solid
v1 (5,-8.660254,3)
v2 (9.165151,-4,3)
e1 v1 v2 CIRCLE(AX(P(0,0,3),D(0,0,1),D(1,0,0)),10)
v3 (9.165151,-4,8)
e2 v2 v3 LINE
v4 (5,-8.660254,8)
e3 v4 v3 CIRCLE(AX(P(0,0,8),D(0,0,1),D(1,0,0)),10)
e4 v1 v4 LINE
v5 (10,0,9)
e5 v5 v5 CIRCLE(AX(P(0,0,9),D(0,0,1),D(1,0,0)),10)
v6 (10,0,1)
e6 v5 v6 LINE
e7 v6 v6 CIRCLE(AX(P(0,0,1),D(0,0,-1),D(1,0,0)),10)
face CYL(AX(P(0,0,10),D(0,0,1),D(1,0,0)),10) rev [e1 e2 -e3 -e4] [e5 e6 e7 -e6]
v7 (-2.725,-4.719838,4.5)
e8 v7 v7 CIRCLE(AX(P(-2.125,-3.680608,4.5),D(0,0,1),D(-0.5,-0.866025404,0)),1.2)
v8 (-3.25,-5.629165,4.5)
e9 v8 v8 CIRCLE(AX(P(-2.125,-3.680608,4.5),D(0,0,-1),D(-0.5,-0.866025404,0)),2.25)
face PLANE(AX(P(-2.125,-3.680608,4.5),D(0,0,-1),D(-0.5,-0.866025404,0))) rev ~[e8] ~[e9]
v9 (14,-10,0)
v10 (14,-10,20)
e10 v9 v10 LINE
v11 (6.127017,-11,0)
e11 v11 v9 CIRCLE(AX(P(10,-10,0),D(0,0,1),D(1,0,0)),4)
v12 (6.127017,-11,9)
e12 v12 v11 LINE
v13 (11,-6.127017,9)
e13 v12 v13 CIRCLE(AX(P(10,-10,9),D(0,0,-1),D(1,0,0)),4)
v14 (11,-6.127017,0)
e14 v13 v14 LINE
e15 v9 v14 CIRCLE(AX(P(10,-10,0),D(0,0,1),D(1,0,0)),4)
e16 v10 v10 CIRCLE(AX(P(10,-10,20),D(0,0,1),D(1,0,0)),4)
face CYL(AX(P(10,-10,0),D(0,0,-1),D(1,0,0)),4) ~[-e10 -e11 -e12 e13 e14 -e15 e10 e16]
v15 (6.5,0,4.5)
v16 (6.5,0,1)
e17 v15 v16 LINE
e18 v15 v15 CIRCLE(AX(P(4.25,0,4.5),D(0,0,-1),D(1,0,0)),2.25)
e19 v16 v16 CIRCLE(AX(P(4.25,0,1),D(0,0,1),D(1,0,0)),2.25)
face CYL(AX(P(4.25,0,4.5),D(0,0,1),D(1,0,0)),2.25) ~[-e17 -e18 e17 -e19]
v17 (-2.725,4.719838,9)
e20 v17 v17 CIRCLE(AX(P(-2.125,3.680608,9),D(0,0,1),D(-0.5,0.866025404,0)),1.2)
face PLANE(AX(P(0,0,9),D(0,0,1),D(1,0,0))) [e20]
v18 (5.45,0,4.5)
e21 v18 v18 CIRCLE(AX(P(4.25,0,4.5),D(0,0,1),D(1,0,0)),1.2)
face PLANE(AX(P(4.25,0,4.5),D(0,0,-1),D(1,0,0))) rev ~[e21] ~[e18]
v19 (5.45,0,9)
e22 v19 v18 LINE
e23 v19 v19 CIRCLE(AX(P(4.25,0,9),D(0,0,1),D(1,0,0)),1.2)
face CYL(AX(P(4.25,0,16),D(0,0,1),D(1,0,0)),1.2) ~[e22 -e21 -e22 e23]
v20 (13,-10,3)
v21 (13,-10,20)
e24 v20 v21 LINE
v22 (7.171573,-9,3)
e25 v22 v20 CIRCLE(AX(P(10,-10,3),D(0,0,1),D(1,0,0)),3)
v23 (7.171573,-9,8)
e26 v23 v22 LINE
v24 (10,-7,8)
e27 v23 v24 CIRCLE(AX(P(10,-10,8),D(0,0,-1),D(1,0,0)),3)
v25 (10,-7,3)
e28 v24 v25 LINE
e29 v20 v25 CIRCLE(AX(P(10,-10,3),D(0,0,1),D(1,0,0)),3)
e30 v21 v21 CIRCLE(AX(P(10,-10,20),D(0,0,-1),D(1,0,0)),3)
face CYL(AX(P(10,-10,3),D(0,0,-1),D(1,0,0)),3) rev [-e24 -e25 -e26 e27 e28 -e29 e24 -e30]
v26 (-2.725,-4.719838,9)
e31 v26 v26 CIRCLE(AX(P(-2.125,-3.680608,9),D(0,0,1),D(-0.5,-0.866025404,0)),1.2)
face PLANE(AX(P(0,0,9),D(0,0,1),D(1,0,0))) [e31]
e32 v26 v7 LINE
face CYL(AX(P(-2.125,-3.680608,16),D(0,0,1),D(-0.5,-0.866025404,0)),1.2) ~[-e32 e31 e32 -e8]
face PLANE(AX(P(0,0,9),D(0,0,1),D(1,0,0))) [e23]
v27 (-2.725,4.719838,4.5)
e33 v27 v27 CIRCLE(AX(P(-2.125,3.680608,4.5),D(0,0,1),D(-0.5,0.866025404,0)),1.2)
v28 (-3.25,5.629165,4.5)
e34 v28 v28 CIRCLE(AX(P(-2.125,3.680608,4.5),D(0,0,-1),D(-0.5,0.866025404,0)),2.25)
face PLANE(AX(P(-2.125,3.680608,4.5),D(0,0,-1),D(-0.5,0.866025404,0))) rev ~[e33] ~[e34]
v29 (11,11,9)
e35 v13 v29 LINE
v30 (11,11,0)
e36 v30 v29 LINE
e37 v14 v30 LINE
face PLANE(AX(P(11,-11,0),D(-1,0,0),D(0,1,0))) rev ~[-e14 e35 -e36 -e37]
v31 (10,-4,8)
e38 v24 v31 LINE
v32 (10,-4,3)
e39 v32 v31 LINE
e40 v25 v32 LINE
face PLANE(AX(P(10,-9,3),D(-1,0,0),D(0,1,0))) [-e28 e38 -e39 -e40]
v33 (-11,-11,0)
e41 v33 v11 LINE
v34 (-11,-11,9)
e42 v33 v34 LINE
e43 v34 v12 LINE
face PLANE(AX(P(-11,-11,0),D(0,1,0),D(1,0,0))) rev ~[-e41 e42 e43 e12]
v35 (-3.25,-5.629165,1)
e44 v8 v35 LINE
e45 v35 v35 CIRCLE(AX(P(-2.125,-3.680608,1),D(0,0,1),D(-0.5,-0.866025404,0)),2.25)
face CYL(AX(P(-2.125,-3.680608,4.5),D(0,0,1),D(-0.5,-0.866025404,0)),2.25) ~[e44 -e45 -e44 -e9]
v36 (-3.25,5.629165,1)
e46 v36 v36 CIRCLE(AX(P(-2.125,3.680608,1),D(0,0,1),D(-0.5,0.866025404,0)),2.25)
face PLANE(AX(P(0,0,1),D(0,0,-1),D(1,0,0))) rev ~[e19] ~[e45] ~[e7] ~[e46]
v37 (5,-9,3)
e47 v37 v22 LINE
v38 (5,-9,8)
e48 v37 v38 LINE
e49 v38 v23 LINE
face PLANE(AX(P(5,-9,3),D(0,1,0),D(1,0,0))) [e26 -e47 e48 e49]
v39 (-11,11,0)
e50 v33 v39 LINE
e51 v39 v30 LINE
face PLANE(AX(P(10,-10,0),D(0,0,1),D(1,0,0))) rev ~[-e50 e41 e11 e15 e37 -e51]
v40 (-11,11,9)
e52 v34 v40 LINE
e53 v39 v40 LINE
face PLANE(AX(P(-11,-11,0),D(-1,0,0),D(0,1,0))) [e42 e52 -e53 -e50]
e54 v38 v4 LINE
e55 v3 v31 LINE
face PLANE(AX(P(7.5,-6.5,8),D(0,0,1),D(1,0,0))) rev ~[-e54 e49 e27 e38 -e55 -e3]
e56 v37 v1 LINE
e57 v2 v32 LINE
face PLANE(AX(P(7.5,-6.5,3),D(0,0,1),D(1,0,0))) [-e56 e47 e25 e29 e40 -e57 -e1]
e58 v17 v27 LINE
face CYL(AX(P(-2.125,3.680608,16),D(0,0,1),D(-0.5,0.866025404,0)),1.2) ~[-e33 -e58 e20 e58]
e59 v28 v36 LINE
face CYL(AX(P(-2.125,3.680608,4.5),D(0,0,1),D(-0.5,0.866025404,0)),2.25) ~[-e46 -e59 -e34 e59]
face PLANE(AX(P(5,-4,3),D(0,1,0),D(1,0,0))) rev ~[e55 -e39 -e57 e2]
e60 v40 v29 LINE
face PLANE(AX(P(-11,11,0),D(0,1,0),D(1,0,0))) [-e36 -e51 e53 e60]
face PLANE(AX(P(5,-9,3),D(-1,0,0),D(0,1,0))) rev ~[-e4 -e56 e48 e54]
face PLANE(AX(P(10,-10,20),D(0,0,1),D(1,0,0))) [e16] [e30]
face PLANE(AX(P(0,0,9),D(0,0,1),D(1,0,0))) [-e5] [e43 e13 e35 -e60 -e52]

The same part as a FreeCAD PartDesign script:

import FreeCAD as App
import Part
import Sketcher


def add_polygon(sketch, points):
    """Adds a closed chain of lines whose ends are joined by coincident constraints."""
    first, n = sketch.GeometryCount, len(points)
    for a, b in zip(points, points[1:] + points[:1]):
        sketch.addGeometry(Part.LineSegment(App.Vector(*a, 0), App.Vector(*b, 0)), False)
    for i in range(n):
        sketch.addConstraint(Sketcher.Constraint("Coincident", first + i, 2, first + (i + 1) % n, 1))

doc = App.newDocument("Part")
params = doc.addObject("Spreadsheet::Sheet", "Params")
for row, (alias, value) in enumerate([
    ("sketch1_width", "5 mm"),
    ("pad1_length", "5 mm"),
    ("sketch2_diameter", "4.5 mm"),
    ("pad2_length", "7 mm"),
    ("sketch3_diameter", "2.4 mm"),
    ("pad3_length", "14 mm"),
    ("sketch4_diameter", "2 mm"),
    ("pad4_length", "1 mm"),
    ("sketch5_diameter", "20 mm"),
    ("pad5_length", "9 mm"),
    ("sketch6_diameter", "6 mm"),
    ("pad6_length", "23 mm"),
    ("sketch7_diameter", "2 mm"),
    ("pad7_length", "10 mm"),
    ("sketch8_diameter", "8 mm"),
    ("pad8_length", "20 mm"),
    ("sketch9_width", "22 mm"),
    ("pad9_length", "9 mm"),
], start=1):
    params.set(f"A{row}", alias)
    params.set(f"B{row}", "=" + value)
    params.setAlias(f"B{row}", alias)

body = doc.addObject("PartDesign::Body", "Body")

# Sketch on XY plane
sketch1 = doc.addObject("Sketcher::SketchObject", "Sketch")
body.addObject(sketch1)
sketch1.AttachmentSupport = (doc.XY_Plane, [""])
sketch1.MapMode = "FlatFace"
sketch1.AttachmentOffset = App.Placement(App.Vector(0, 0, 3), App.Rotation())
add_polygon(sketch1, [(5, -4), (5, -9), (10, -9), (10, -4)])  # lines 0-3
sketch1.addConstraint([
    Sketcher.Constraint("Vertical", 0),
    Sketcher.Constraint("Horizontal", 1),
    Sketcher.Constraint("Vertical", 2),
    Sketcher.Constraint("Horizontal", 3),
    Sketcher.Constraint("Equal", 3, 0),
    Sketcher.Constraint("DistanceX", 1, 1, 1, 2, 5.0),
    Sketcher.Constraint("DistanceX", -1, 1, 0, 2, 5.0),
    Sketcher.Constraint("DistanceY", 0, 2, -1, 1, 9.0),
])
sketch1.setExpression("Constraints[9]", "Params.sketch1_width")
pad1 = doc.addObject("PartDesign::Pad", "Pad")
body.addObject(pad1)
pad1.Profile = sketch1
pad1.setExpression("Length", "Params.pad1_length")
body2 = doc.addObject("PartDesign::Body", "Body001")

# Sketch on XY plane
sketch2 = doc.addObject("Sketcher::SketchObject", "Sketch001")
body2.addObject(sketch2)
sketch2.AttachmentSupport = (doc.getObject("XY_Plane001"), [""])
sketch2.MapMode = "FlatFace"
sketch2.AttachmentOffset = App.Placement(App.Vector(0, 0, 4.5), App.Rotation())
sketch2.addGeometry(Part.Circle(App.Vector(0, 0, 0), App.Vector(0, 0, 1), 2.2), False)
sketch2.addConstraint([
    Sketcher.Constraint("Coincident", 0, 3, -1, 1),
    Sketcher.Constraint("Diameter", 0, 4.5),
])
sketch2.setExpression("Constraints[1]", "Params.sketch2_diameter")
pad2 = doc.addObject("PartDesign::Pad", "Pad001")
body2.addObject(pad2)
pad2.Profile = sketch2
pad2.setExpression("Length", "Params.pad2_length")
body3 = doc.addObject("PartDesign::Body", "Body002")

# Sketch on XY plane
sketch3 = doc.addObject("Sketcher::SketchObject", "Sketch002")
body3.addObject(sketch3)
sketch3.AttachmentSupport = (doc.getObject("XY_Plane002"), [""])
sketch3.MapMode = "FlatFace"
sketch3.AttachmentOffset = App.Placement(App.Vector(0, 0, -7), App.Rotation())
sketch3.addGeometry(Part.Circle(App.Vector(0, 0, 0), App.Vector(0, 0, 1), 1.2), False)
sketch3.addConstraint([
    Sketcher.Constraint("Coincident", 0, 3, -1, 1),
    Sketcher.Constraint("Diameter", 0, 2.4),
])
sketch3.setExpression("Constraints[1]", "Params.sketch3_diameter")
pad3 = doc.addObject("PartDesign::Pad", "Pad002")
body3.addObject(pad3)
pad3.Profile = sketch3
pad3.setExpression("Length", "Params.pad3_length")
body4 = doc.addObject("PartDesign::Body", "Body003")

# Sketch on XY plane
sketch4 = doc.addObject("Sketcher::SketchObject", "Sketch003")
body4.addObject(sketch4)
sketch4.AttachmentSupport = (doc.getObject("XY_Plane003"), [""])
sketch4.MapMode = "FlatFace"
sketch4.AttachmentOffset = App.Placement(App.Vector(0, 0, 4.5), App.Rotation())
sketch4.addGeometry(Part.Circle(App.Vector(0, 0, 0), App.Vector(0, 0, 1), 1), False)
sketch4.addConstraint([
    Sketcher.Constraint("Coincident", 0, 3, -1, 1),
    Sketcher.Constraint("Diameter", 0, 2.0),
])
sketch4.setExpression("Constraints[1]", "Params.sketch4_diameter")
pad4 = doc.addObject("PartDesign::Pad", "Pad003")
body4.addObject(pad4)
pad4.Profile = sketch4
pad4.setExpression("Length", "Params.pad4_length")
doc.recompute()

boolean = doc.addObject("PartDesign::Boolean", "Boolean")
body4.addObject(boolean)
boolean.Type = "Fuse"
boolean.addObjects([body2])
doc.recompute()

boolean2 = doc.addObject("PartDesign::Boolean", "Boolean001")
body4.addObject(boolean2)
boolean2.Type = "Fuse"
boolean2.addObjects([body3])
body5 = doc.addObject("PartDesign::Body", "Body004")
doc.recompute()

body4.Placement = App.Placement(App.Vector(4.25, 0, 0), App.Rotation(App.Vector(0, 0, 1), 0))
boolean3 = doc.addObject("PartDesign::Boolean", "Boolean002")
body5.addObject(boolean3)
boolean3.Type = "Fuse"
boolean3.addObjects([body4])
body6 = doc.addObject("PartDesign::Body", "Body005")
body6.AllowCompound = True
doc.recompute()

body6.BaseFeature = body5
doc.recompute()

body7 = doc.addObject("PartDesign::Body", "Body006")
body7.BaseFeature = body5
body7.Placement = App.Placement(App.Vector(0, 0, 0), App.Rotation(App.Vector(0, 0, 1), 120))
boolean4 = doc.addObject("PartDesign::Boolean", "Boolean003")
body6.addObject(boolean4)
boolean4.Type = "Fuse"
boolean4.addObjects([body7])
doc.recompute()

body5.Placement = App.Placement(App.Vector(0, 0, 0), App.Rotation(App.Vector(0, 0, 1), 240))
boolean5 = doc.addObject("PartDesign::Boolean", "Boolean004")
body6.addObject(boolean5)
boolean5.Type = "Fuse"
boolean5.addObjects([body5])
body8 = doc.addObject("PartDesign::Body", "Body007")

# Sketch on XY plane
sketch5 = doc.addObject("Sketcher::SketchObject", "Sketch004")
body8.addObject(sketch5)
sketch5.AttachmentSupport = (doc.getObject("XY_Plane007"), [""])
sketch5.MapMode = "FlatFace"
sketch5.AttachmentOffset = App.Placement(App.Vector(0, 0, -1), App.Rotation())
sketch5.addGeometry(Part.Circle(App.Vector(0, 0, 0), App.Vector(0, 0, 1), 10), False)
sketch5.addConstraint([
    Sketcher.Constraint("Coincident", 0, 3, -1, 1),
    Sketcher.Constraint("Diameter", 0, 20.0),
])
sketch5.setExpression("Constraints[1]", "Params.sketch5_diameter")
pad5 = doc.addObject("PartDesign::Pad", "Pad004")
body8.addObject(pad5)
pad5.Profile = sketch5
pad5.setExpression("Length", "Params.pad5_length")
doc.recompute()

boolean6 = doc.addObject("PartDesign::Boolean", "Boolean005")
body8.addObject(boolean6)
boolean6.Type = "Cut"
boolean6.addObjects([body6])
body9 = doc.addObject("PartDesign::Body", "Body008")
doc.recompute()

body8.Placement = App.Placement(App.Vector(0, 0, 9), App.Rotation(App.Vector(1, 0, 0), 180))
boolean7 = doc.addObject("PartDesign::Boolean", "Boolean006")
body9.addObject(boolean7)
boolean7.Type = "Fuse"
boolean7.addObjects([body8])
body10 = doc.addObject("PartDesign::Body", "Body009")

# Sketch on XY plane
sketch6 = doc.addObject("Sketcher::SketchObject", "Sketch005")
body10.addObject(sketch6)
sketch6.AttachmentSupport = (doc.getObject("XY_Plane009"), [""])
sketch6.MapMode = "FlatFace"
sketch6.AttachmentOffset = App.Placement(App.Vector(0, 0, 3), App.Rotation())
sketch6.addGeometry(Part.Circle(App.Vector(10, -10, 0), App.Vector(0, 0, 1), 3), False)
sketch6.addConstraint([
    Sketcher.Constraint("Diameter", 0, 6.0),
    Sketcher.Constraint("DistanceX", -1, 1, 0, 3, 10.0),
    Sketcher.Constraint("DistanceY", 0, 3, -1, 1, 10.0),
])
sketch6.setExpression("Constraints[0]", "Params.sketch6_diameter")
pad6 = doc.addObject("PartDesign::Pad", "Pad005")
body10.addObject(pad6)
pad6.Profile = sketch6
pad6.setExpression("Length", "Params.pad6_length")
body11 = doc.addObject("PartDesign::Body", "Body010")
body11.AllowCompound = True

# Sketch on XY plane
sketch7 = doc.addObject("Sketcher::SketchObject", "Sketch006")
body11.addObject(sketch7)
sketch7.AttachmentSupport = (doc.getObject("XY_Plane010"), [""])
sketch7.MapMode = "FlatFace"
sketch7.AttachmentOffset = App.Placement(App.Vector(0, 0, 6), App.Rotation())
sketch7.addGeometry(Part.Circle(App.Vector(0, 0, 0), App.Vector(0, 0, 1), 1), False)
sketch7.addConstraint([
    Sketcher.Constraint("Coincident", 0, 3, -1, 1),
    Sketcher.Constraint("Diameter", 0, 2.0),
])
sketch7.setExpression("Constraints[1]", "Params.sketch7_diameter")
pad7 = doc.addObject("PartDesign::Pad", "Pad006")
body11.addObject(pad7)
pad7.Profile = sketch7
pad7.setExpression("Length", "Params.pad7_length")
doc.recompute()

boolean8 = doc.addObject("PartDesign::Boolean", "Boolean007")
body11.addObject(boolean8)
boolean8.Type = "Fuse"
boolean8.addObjects([body10])
doc.recompute()

boolean9 = doc.addObject("PartDesign::Boolean", "Boolean008")
body11.addObject(boolean9)
boolean9.Type = "Fuse"
boolean9.addObjects([body9])
body12 = doc.addObject("PartDesign::Body", "Body011")

# Sketch on XY plane
sketch8 = doc.addObject("Sketcher::SketchObject", "Sketch007")
body12.addObject(sketch8)
sketch8.AttachmentSupport = (doc.getObject("XY_Plane011"), [""])
sketch8.MapMode = "FlatFace"
sketch8.addGeometry(Part.Circle(App.Vector(10, -10, 0), App.Vector(0, 0, 1), 4), False)
sketch8.addConstraint([
    Sketcher.Constraint("Diameter", 0, 8.0),
    Sketcher.Constraint("DistanceX", -1, 1, 0, 3, 10.0),
    Sketcher.Constraint("DistanceY", 0, 3, -1, 1, 10.0),
])
sketch8.setExpression("Constraints[0]", "Params.sketch8_diameter")
pad8 = doc.addObject("PartDesign::Pad", "Pad007")
body12.addObject(pad8)
pad8.Profile = sketch8
pad8.setExpression("Length", "Params.pad8_length")
body13 = doc.addObject("PartDesign::Body", "Body012")

# Sketch on XY plane
sketch9 = doc.addObject("Sketcher::SketchObject", "Sketch008")
body13.addObject(sketch9)
sketch9.AttachmentSupport = (doc.getObject("XY_Plane012"), [""])
sketch9.MapMode = "FlatFace"
add_polygon(sketch9, [(-11, 11), (-11, -11), (11, -11), (11, 11)])  # lines 0-3
sketch9.addConstraint([
    Sketcher.Constraint("Vertical", 0),
    Sketcher.Constraint("Horizontal", 1),
    Sketcher.Constraint("Vertical", 2),
    Sketcher.Constraint("Horizontal", 3),
    Sketcher.Constraint("Symmetric", 0, 2, 2, 2, -1, 1),
    Sketcher.Constraint("Equal", 3, 0),
    Sketcher.Constraint("DistanceX", 1, 1, 1, 2, 22.0),
])
sketch9.setExpression("Constraints[10]", "Params.sketch9_width")
pad9 = doc.addObject("PartDesign::Pad", "Pad008")
body13.addObject(pad9)
pad9.Profile = sketch9
pad9.setExpression("Length", "Params.pad9_length")
doc.recompute()

boolean10 = doc.addObject("PartDesign::Boolean", "Boolean009")
body13.addObject(boolean10)
boolean10.Type = "Fuse"
boolean10.addObjects([body12])
doc.recompute()

boolean11 = doc.addObject("PartDesign::Boolean", "Boolean010")
body13.addObject(boolean11)
boolean11.Type = "Cut"
boolean11.addObjects([body11])
doc.recompute()

boolean12 = doc.addObject("PartDesign::Boolean", "Boolean011")
body13.addObject(boolean12)
boolean12.Type = "Cut"
boolean12.addObjects([body])

doc.recompute()
